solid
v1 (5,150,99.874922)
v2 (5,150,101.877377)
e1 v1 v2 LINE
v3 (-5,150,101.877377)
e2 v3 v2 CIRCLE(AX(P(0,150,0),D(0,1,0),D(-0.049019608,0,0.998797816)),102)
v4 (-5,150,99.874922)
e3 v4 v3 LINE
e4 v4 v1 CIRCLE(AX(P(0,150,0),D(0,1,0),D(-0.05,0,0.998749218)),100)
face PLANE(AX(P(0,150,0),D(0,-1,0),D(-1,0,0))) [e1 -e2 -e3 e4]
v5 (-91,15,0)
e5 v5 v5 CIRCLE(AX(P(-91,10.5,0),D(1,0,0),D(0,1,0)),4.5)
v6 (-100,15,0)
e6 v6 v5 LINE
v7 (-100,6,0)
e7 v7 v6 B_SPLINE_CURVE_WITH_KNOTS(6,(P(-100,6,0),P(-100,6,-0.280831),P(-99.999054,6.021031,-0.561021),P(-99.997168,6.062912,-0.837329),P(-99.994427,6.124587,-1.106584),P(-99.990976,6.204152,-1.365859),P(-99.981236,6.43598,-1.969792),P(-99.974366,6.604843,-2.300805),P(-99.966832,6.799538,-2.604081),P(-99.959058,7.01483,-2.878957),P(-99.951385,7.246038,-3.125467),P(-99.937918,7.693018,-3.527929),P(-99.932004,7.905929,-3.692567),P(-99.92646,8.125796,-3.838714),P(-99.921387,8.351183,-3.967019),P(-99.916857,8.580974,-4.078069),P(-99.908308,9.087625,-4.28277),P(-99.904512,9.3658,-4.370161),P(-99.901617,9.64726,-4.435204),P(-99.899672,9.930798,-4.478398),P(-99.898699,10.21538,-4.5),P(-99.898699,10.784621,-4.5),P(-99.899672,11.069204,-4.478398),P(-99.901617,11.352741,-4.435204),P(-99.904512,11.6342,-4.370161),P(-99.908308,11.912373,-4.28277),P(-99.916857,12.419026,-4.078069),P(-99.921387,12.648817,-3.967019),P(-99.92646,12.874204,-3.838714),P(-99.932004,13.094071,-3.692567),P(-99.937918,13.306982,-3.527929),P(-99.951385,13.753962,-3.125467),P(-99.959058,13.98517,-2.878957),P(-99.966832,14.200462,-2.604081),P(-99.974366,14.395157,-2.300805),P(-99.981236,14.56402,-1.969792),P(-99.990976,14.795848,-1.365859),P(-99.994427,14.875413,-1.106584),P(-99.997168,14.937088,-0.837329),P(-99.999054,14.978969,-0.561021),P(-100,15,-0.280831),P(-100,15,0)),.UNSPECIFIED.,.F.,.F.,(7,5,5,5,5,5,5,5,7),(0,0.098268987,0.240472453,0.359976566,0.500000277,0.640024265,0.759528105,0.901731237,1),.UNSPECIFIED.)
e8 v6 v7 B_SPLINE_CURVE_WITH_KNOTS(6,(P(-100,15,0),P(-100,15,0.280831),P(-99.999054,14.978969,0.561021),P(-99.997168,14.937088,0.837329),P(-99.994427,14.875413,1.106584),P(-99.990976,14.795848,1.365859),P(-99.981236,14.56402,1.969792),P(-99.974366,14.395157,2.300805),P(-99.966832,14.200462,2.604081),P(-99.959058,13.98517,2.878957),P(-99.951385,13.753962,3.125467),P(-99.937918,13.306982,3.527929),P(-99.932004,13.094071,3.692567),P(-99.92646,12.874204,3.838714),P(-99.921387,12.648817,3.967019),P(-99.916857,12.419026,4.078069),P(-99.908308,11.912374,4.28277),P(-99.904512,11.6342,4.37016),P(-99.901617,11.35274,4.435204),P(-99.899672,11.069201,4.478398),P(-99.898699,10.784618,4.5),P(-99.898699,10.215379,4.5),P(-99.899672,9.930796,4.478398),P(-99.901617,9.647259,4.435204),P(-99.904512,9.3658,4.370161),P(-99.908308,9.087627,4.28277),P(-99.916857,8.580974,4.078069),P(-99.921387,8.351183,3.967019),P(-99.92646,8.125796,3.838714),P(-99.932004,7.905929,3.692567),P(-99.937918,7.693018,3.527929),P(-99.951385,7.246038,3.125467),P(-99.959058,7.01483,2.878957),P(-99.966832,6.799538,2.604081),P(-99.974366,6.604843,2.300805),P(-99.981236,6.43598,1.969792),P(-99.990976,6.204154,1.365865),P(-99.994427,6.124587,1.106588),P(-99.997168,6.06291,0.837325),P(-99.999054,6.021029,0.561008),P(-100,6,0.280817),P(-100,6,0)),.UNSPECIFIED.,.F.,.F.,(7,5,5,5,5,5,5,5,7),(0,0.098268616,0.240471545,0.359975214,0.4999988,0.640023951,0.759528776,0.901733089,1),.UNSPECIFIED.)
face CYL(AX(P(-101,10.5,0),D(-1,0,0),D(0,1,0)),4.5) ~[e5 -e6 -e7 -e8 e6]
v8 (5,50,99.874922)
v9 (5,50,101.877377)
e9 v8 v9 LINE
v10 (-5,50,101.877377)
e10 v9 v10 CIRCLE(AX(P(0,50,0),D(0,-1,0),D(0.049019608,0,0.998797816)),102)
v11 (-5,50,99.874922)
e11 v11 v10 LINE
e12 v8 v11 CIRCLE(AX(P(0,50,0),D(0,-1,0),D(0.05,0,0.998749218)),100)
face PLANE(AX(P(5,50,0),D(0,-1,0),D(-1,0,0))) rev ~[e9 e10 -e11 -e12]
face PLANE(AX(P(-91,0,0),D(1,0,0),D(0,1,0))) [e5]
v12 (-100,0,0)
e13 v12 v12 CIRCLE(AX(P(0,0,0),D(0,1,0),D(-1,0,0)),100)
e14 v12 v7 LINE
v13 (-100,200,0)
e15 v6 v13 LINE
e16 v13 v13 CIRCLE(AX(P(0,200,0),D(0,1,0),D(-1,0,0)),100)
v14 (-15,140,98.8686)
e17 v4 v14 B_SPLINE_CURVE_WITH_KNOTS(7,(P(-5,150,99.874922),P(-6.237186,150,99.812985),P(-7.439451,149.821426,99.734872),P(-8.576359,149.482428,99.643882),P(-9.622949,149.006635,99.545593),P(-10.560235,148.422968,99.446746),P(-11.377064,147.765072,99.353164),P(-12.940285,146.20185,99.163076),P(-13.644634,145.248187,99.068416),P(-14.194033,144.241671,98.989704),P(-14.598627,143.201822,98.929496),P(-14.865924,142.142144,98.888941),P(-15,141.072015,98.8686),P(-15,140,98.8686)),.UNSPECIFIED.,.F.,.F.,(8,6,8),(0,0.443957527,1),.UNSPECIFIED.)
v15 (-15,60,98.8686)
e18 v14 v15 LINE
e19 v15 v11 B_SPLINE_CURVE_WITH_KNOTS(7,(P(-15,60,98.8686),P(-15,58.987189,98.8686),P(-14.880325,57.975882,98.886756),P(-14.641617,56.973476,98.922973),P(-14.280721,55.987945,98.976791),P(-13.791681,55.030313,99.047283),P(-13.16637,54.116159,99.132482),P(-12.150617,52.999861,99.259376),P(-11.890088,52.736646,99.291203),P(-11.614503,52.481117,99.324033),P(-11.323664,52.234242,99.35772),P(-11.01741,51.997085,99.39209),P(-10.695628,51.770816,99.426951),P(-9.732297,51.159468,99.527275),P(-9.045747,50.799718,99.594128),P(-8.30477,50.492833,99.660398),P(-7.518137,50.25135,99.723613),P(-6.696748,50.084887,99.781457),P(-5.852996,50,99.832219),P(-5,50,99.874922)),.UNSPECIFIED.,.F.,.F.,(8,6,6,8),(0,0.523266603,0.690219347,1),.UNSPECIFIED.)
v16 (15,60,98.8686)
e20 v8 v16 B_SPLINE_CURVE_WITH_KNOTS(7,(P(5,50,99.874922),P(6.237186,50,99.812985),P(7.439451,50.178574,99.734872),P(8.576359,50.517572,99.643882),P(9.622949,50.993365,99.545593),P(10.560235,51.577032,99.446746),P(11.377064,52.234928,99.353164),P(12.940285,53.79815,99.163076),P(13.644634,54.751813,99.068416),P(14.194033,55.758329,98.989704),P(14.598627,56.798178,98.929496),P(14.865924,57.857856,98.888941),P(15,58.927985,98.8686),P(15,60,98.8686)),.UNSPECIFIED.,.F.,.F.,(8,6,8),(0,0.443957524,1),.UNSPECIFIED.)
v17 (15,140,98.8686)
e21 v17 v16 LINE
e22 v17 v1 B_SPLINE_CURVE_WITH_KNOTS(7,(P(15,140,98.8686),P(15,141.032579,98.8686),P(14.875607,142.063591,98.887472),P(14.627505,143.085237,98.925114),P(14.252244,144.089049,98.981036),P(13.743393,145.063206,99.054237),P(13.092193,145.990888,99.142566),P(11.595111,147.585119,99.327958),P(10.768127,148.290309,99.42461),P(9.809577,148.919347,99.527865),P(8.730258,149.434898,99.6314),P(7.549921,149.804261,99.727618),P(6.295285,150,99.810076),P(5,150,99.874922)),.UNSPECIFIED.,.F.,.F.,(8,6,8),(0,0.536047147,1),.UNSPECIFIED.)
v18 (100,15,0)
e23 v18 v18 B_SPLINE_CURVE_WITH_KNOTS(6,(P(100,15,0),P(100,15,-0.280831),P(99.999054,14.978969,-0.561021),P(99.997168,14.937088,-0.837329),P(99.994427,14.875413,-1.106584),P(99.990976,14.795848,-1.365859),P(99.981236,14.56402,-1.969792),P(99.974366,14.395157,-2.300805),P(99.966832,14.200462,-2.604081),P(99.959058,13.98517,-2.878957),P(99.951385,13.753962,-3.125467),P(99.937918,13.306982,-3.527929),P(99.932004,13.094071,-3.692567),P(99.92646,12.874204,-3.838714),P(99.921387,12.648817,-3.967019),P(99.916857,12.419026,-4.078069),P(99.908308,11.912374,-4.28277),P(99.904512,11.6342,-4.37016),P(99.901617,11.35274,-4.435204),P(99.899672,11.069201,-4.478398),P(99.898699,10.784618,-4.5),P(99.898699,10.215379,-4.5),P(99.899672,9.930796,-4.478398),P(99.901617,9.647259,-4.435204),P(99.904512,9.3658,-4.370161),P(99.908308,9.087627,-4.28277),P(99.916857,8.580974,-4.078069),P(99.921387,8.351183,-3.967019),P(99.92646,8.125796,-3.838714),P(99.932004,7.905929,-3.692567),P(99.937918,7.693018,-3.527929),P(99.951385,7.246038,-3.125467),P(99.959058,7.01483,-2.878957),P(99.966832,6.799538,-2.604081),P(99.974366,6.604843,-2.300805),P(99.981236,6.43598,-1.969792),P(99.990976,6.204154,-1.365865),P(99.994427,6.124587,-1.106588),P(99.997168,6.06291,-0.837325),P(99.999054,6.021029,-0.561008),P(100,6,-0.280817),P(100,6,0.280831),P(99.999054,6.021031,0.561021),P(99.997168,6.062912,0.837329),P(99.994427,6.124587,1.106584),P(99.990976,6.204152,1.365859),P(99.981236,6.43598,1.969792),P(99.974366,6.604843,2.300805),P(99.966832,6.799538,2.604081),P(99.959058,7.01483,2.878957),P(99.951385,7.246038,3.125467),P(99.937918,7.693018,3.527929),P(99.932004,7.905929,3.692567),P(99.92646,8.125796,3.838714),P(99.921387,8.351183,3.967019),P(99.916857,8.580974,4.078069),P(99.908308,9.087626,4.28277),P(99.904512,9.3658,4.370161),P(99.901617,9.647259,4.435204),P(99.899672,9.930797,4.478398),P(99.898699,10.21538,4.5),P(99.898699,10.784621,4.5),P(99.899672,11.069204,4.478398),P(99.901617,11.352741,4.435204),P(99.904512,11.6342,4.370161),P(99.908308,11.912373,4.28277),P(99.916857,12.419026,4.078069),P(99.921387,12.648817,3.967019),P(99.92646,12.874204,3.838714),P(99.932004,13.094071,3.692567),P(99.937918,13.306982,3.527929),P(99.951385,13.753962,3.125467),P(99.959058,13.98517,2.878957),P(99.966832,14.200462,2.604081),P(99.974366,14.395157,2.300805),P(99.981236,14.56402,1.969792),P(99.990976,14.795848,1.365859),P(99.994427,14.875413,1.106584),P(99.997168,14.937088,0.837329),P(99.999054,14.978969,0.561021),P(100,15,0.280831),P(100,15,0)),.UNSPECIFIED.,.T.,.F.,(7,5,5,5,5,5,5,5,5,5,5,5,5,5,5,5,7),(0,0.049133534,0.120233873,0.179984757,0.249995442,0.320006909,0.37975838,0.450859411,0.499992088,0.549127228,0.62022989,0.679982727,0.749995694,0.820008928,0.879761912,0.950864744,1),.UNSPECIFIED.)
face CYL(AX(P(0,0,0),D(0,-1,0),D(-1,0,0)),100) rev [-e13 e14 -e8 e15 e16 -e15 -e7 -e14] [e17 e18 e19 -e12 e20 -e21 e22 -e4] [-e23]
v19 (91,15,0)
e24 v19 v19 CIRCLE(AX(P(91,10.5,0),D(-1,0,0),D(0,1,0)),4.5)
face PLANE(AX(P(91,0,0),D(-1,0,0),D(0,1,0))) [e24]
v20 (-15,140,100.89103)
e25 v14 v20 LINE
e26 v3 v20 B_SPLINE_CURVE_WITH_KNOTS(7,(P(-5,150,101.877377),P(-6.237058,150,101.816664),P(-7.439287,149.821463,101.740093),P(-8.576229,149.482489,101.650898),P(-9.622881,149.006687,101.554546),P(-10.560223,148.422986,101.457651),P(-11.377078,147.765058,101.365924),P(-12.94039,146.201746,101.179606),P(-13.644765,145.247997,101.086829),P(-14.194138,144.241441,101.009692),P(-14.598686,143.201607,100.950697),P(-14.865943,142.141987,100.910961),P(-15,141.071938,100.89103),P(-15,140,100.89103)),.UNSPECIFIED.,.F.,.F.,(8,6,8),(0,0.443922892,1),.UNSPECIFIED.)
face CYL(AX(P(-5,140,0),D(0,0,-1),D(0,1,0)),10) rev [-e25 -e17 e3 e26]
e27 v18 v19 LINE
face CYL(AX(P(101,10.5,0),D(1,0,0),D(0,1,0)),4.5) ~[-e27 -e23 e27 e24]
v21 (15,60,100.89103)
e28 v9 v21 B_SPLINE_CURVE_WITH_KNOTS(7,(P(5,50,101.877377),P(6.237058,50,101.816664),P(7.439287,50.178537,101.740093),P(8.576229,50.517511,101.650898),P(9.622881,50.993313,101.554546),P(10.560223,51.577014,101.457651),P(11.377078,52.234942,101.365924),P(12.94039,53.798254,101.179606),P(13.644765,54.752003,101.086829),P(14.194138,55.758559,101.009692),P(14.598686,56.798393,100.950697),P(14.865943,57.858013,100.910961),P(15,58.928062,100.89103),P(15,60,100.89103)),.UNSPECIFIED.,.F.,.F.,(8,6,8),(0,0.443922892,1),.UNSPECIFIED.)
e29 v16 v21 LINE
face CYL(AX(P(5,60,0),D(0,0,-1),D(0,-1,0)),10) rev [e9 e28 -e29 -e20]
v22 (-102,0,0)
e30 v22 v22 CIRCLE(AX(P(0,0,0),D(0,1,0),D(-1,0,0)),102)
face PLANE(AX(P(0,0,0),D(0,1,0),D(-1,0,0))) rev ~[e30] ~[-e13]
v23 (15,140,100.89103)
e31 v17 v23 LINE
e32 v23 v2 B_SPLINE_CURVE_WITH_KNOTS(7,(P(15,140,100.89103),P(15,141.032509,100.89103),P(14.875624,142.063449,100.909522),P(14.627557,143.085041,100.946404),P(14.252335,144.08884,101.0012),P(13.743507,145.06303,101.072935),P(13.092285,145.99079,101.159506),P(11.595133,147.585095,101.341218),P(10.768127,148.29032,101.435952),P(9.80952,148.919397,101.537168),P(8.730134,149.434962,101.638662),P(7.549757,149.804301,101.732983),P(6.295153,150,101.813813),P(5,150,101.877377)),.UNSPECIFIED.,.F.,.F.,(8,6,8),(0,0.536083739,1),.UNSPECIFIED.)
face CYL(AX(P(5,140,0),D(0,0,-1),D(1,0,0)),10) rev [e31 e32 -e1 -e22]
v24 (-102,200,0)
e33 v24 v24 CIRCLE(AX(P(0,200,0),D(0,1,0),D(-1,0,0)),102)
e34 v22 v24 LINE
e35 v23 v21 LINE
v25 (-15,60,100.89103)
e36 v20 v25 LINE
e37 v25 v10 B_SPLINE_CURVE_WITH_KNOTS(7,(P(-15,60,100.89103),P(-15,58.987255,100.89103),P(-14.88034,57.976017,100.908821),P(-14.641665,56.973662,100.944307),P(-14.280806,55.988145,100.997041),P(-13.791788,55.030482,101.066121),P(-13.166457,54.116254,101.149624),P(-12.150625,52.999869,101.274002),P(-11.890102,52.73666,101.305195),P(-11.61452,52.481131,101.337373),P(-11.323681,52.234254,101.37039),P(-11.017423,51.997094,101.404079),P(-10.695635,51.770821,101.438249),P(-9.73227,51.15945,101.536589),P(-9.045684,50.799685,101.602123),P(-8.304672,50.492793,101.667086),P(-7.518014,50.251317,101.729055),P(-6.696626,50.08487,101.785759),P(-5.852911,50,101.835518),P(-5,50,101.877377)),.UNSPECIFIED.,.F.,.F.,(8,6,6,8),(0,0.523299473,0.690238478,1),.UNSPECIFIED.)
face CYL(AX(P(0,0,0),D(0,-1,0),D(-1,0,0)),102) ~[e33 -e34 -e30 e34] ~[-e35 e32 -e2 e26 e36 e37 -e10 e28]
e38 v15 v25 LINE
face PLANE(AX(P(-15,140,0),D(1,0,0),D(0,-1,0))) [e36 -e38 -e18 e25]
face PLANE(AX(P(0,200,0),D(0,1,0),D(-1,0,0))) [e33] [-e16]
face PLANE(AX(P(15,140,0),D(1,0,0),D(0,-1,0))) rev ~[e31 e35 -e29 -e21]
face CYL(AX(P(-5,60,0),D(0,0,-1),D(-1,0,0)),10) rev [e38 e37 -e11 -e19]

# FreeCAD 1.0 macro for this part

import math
import FreeCAD as App
import Part
import Sketcher
from FreeCAD import Vector
Q = App.Units.Quantity

doc = App.newDocument("Part")
body = doc.addObject("PartDesign::Body", "Body")

# Sketch on XZ plane
sketch1 = doc.addObject("Sketcher::SketchObject", "Sketch")
body.addObject(sketch1)
sketch1.AttachmentSupport = (doc.XZ_Plane, [""])
sketch1.MapMode = "FlatFace"
sketch1.addGeometry(Part.Circle(Vector(0, 0, 0), Vector(0, 0, 1), 102), False)
sketch1.addGeometry(Part.Circle(Vector(0, 0, 0), Vector(0, 0, 1), 100), False)
sketch1.addConstraint(Sketcher.Constraint("Coincident", 0, 3, -1, 1))
sketch1.addConstraint(Sketcher.Constraint("Coincident", 1, 3, -1, 1))
sketch1.addConstraint(Sketcher.Constraint("Diameter", 1, Q("200 mm")))
sketch1.addConstraint(Sketcher.Constraint("Diameter", 0, Q("204 mm")))
pad1 = doc.addObject("PartDesign::Pad", "Pad")
body.addObject(pad1)
pad1.Profile = sketch1
pad1.Length = 200
pad1.Reversed = True

# Sketch on XY plane
sketch2 = doc.addObject("Sketcher::SketchObject", "Sketch001")
body.addObject(sketch2)
sketch2.AttachmentSupport = (doc.XY_Plane, [""])
sketch2.MapMode = "FlatFace"
sketch2.addGeometry(Part.ArcOfCircle(Part.Circle(Vector(-5, 60, 0), Vector(0, 0, 1), 10), math.radians(180), math.radians(270)), False)
sketch2.addGeometry(Part.LineSegment(Vector(-5, 50, 0), Vector(5, 50, 0)), False)
sketch2.addGeometry(Part.ArcOfCircle(Part.Circle(Vector(5, 60, 0), Vector(0, 0, 1), 10), math.radians(-90), math.radians(0)), False)
sketch2.addGeometry(Part.LineSegment(Vector(15, 60, 0), Vector(15, 140, 0)), False)
sketch2.addGeometry(Part.ArcOfCircle(Part.Circle(Vector(5, 140, 0), Vector(0, 0, 1), 10), math.radians(0), math.radians(90)), False)
sketch2.addGeometry(Part.LineSegment(Vector(5, 150, 0), Vector(-5, 150, 0)), False)
sketch2.addGeometry(Part.ArcOfCircle(Part.Circle(Vector(-5, 140, 0), Vector(0, 0, 1), 10), math.radians(90), math.radians(180)), False)
sketch2.addGeometry(Part.LineSegment(Vector(-15, 140, 0), Vector(-15, 60, 0)), False)
sketch2.addConstraint(Sketcher.Constraint("Tangent", 0, 2, 1, 1))
sketch2.addConstraint(Sketcher.Constraint("Tangent", 1, 2, 2, 1))
sketch2.addConstraint(Sketcher.Constraint("Tangent", 2, 2, 3, 1))
sketch2.addConstraint(Sketcher.Constraint("Tangent", 3, 2, 4, 1))
sketch2.addConstraint(Sketcher.Constraint("Tangent", 4, 2, 5, 1))
sketch2.addConstraint(Sketcher.Constraint("Tangent", 5, 2, 6, 1))
sketch2.addConstraint(Sketcher.Constraint("Tangent", 6, 2, 7, 1))
sketch2.addConstraint(Sketcher.Constraint("Tangent", 7, 2, 0, 1))
sketch2.addConstraint(Sketcher.Constraint("Horizontal", 1))
sketch2.addConstraint(Sketcher.Constraint("Vertical", 3))
sketch2.addConstraint(Sketcher.Constraint("Horizontal", 5))
sketch2.addConstraint(Sketcher.Constraint("Vertical", 7))
sketch2.addConstraint(Sketcher.Constraint("Equal", 0, 2))
sketch2.addConstraint(Sketcher.Constraint("Equal", 2, 4))
sketch2.addConstraint(Sketcher.Constraint("Equal", 4, 6))
sketch2.addConstraint(Sketcher.Constraint("Radius", 0, Q("10 mm")))
sketch2.addConstraint(Sketcher.Constraint("DistanceX", 1, 1, 1, 2, Q("10 mm")))
sketch2.addConstraint(Sketcher.Constraint("DistanceX", -1, 1, 2, 2, Q("15 mm")))
sketch2.addConstraint(Sketcher.Constraint("DistanceY", 3, 1, 3, 2, Q("80 mm")))
sketch2.addConstraint(Sketcher.Constraint("DistanceY", -1, 1, 0, 3, Q("60 mm")))
pocket1 = doc.addObject("PartDesign::Pocket", "Pocket")
body.addObject(pocket1)
pocket1.Profile = sketch2
pocket1.Type = "ThroughAll"
pocket1.Reversed = True

# Sketch on YZ plane
sketch3 = doc.addObject("Sketcher::SketchObject", "Sketch002")
body.addObject(sketch3)
sketch3.AttachmentSupport = (doc.YZ_Plane, [""])
sketch3.MapMode = "FlatFace"
sketch3.AttachmentOffset = App.Placement(Vector(0, 0, -101), App.Rotation())
sketch3.addGeometry(Part.Circle(Vector(10.5, 0, 0), Vector(0, 0, 1), 4.5), False)
sketch3.addConstraint(Sketcher.Constraint("PointOnObject", 0, 3, -1))
sketch3.addConstraint(Sketcher.Constraint("Diameter", 0, Q("9 mm")))
sketch3.addConstraint(Sketcher.Constraint("DistanceX", -1, 1, 0, 3, Q("10.5 mm")))
pad2 = doc.addObject("PartDesign::Pad", "Pad001")
body.addObject(pad2)
pad2.Profile = sketch3
pad2.Length = 10
doc.recompute()

polarpattern = doc.addObject("PartDesign::PolarPattern", "PolarPattern")
body.addObject(polarpattern)
polarpattern.Originals = [pad2]
polarpattern.Axis = (doc.Y_Axis, [""])
polarpattern.Angle = 360
polarpattern.Occurrences = 2
body.Tip = polarpattern

doc.recompute()
